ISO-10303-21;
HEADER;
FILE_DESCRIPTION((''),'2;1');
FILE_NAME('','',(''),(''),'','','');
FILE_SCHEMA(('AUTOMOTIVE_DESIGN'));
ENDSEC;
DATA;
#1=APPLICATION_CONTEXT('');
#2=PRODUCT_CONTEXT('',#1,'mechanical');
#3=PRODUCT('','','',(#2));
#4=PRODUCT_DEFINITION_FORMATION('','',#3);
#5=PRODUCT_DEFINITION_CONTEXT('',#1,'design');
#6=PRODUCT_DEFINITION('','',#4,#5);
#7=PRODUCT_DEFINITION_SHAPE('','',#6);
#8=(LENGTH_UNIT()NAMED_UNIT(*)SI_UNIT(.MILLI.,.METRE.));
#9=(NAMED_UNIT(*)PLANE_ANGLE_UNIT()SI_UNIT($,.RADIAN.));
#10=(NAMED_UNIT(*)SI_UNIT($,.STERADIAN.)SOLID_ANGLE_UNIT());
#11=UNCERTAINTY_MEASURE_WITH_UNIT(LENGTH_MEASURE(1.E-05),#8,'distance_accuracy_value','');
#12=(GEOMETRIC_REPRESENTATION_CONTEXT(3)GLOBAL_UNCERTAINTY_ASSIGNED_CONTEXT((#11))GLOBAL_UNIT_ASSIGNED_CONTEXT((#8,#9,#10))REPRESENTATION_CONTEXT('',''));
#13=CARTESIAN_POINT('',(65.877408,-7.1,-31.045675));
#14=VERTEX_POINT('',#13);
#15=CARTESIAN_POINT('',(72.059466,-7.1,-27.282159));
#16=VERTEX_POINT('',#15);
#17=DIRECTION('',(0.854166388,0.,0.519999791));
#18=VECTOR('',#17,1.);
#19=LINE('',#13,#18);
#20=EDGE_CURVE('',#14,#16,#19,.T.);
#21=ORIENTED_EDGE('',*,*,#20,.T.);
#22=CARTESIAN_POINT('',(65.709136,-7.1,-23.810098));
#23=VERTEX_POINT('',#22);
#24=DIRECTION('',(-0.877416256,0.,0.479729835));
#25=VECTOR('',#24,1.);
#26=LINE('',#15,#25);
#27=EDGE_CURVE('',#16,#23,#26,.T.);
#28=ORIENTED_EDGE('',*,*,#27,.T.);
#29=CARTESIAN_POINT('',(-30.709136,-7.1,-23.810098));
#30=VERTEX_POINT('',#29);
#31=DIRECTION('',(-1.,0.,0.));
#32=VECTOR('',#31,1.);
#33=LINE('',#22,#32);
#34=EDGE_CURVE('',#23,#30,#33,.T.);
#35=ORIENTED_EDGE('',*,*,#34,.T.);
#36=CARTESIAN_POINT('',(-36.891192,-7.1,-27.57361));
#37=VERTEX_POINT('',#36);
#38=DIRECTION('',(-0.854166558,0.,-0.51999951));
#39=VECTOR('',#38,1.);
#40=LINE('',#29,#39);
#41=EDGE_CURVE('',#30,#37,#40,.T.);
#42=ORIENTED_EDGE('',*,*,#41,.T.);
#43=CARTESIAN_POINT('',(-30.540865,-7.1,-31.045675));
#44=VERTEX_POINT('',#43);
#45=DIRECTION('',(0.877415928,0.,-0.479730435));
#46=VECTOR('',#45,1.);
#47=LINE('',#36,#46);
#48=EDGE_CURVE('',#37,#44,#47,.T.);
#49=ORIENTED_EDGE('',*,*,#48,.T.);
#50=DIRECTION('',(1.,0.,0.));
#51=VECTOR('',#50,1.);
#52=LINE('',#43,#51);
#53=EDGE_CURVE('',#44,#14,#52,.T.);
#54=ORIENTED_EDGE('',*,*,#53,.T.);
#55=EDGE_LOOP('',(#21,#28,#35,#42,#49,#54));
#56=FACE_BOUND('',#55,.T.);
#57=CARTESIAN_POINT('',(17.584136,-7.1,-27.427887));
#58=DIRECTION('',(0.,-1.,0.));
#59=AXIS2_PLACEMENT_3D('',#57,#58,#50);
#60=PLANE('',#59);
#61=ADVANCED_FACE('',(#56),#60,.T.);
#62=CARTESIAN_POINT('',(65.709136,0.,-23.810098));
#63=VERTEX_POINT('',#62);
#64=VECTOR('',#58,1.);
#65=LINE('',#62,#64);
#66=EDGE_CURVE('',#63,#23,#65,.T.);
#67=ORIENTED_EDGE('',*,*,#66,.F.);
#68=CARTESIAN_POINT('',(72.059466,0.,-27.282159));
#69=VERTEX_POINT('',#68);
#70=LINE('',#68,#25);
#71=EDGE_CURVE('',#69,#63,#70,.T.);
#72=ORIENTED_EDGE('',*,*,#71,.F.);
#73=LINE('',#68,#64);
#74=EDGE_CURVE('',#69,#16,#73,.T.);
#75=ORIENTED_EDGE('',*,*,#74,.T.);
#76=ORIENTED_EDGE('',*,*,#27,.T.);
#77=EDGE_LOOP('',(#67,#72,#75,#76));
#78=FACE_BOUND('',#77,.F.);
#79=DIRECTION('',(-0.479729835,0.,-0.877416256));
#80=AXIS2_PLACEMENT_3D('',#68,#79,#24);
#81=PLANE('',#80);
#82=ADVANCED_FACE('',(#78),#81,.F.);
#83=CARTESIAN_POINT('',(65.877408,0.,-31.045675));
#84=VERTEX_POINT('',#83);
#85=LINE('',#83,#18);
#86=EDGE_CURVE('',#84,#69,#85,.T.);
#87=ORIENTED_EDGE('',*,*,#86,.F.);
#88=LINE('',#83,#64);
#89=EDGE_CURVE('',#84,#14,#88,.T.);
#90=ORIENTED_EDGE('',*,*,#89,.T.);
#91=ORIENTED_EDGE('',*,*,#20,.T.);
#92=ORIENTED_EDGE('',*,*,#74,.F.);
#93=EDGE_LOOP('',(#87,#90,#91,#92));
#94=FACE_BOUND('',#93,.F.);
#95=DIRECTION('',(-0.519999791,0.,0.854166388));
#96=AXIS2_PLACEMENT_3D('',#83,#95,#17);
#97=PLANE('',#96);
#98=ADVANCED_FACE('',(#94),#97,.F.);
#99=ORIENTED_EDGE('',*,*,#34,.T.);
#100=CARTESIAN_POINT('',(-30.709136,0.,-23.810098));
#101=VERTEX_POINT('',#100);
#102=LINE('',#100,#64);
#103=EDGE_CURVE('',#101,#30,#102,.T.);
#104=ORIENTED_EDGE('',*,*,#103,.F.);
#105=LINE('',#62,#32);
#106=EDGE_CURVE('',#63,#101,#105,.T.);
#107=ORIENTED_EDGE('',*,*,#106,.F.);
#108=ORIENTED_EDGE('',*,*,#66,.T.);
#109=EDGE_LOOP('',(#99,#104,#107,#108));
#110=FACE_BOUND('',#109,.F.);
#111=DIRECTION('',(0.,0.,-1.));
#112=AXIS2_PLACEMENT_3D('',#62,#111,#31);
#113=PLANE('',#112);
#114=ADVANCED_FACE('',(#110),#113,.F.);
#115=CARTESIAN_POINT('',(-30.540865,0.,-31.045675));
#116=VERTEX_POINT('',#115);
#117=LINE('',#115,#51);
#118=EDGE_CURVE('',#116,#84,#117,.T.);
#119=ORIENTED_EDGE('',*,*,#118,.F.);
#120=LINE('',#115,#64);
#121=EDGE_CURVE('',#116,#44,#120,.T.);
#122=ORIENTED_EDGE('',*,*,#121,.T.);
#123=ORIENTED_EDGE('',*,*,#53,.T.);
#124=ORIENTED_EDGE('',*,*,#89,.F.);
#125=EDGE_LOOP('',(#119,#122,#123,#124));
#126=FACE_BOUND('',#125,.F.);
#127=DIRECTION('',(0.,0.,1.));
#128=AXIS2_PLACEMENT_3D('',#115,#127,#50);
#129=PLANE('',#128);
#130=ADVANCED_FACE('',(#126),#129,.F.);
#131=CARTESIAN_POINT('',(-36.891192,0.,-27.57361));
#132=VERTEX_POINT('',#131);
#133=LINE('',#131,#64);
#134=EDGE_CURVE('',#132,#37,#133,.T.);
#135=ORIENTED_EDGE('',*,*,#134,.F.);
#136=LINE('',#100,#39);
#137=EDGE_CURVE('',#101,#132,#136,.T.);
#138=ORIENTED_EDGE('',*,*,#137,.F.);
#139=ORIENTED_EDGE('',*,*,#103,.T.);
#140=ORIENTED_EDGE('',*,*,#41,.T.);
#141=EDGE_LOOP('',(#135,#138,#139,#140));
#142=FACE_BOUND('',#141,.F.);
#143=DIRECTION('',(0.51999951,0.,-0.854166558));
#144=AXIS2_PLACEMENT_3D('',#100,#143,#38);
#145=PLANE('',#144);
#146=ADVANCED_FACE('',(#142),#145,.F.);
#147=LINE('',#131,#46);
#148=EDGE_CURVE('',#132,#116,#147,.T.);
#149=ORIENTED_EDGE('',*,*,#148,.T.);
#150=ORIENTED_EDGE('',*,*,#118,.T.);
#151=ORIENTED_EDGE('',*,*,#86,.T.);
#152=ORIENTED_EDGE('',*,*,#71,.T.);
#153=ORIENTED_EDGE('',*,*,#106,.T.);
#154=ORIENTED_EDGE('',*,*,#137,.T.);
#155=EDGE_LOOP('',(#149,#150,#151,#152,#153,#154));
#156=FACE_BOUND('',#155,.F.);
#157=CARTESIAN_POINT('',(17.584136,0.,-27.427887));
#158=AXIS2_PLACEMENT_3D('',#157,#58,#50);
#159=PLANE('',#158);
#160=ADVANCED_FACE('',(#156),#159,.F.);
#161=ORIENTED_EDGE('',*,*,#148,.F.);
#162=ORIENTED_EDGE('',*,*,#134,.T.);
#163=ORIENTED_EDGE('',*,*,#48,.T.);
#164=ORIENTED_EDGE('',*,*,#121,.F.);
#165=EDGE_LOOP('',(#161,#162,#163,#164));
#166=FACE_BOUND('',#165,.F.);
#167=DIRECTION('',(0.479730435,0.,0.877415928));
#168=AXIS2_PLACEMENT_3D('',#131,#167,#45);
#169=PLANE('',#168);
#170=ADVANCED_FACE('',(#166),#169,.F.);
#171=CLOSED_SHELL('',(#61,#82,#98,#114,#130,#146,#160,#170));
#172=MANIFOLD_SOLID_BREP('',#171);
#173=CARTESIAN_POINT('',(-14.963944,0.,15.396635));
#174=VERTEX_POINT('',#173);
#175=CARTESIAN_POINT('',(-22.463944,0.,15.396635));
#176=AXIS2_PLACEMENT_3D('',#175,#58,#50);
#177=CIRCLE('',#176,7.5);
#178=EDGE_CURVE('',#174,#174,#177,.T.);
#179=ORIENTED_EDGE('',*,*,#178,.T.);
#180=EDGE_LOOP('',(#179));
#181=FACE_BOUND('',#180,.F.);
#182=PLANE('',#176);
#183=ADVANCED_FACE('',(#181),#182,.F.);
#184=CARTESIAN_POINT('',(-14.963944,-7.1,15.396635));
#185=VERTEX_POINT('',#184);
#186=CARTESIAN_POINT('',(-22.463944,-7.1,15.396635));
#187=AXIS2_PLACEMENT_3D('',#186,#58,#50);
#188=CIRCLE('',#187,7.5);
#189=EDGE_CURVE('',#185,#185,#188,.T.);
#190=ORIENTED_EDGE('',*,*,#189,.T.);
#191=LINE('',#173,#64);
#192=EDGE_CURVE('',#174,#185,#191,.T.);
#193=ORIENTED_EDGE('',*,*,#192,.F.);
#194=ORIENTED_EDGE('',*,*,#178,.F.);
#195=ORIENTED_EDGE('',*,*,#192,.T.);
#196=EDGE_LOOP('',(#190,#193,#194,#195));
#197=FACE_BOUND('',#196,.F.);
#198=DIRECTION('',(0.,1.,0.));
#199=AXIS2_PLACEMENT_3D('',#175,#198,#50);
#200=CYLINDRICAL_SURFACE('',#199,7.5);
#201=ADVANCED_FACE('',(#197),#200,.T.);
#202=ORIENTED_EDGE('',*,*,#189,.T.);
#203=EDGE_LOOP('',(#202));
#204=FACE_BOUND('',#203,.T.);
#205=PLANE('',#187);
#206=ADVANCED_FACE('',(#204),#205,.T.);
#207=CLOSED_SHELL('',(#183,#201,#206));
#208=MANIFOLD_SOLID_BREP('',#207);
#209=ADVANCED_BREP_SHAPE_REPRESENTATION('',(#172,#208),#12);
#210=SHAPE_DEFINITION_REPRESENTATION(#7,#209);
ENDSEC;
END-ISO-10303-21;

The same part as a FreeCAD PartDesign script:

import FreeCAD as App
import Part
import Sketcher
from FreeCAD import Vector


def add_polygon(sketch, points):
    """Adds a closed chain of lines whose ends are joined by coincident constraints."""
    first, n = sketch.GeometryCount, len(points)
    for a, b in zip(points, points[1:] + points[:1]):
        sketch.addGeometry(Part.LineSegment(App.Vector(*a, 0), App.Vector(*b, 0)), False)
    for i in range(n):
        sketch.addConstraint(Sketcher.Constraint("Coincident", first + i, 2, first + (i + 1) % n, 1))

doc = App.newDocument("Part")
body = doc.addObject("PartDesign::Body", "Body")
body.AllowCompound = True

# Sketch on XZ plane
sketch1 = doc.addObject("Sketcher::SketchObject", "Sketch")
body.addObject(sketch1)
sketch1.AttachmentSupport = (doc.XZ_Plane, [""])
sketch1.MapMode = "FlatFace"
sketch1.addGeometry(Part.Circle(Vector(-22, 15, 0), Vector(0, 0, 1), 8), False)  # 0
add_polygon(sketch1, [(-31, -31), (66, -31), (72, -27), (66, -24), (-31, -24), (-37, -28)])  # lines 1-6
sketch1.addConstraint(Sketcher.Constraint("Horizontal", 1))
sketch1.addConstraint(Sketcher.Constraint("Horizontal", 4))
sketch1.addConstraint(Sketcher.Constraint("Parallel", 2, 5))
sketch1.addConstraint(Sketcher.Constraint("Parallel", 3, 6))
sketch1.addConstraint(Sketcher.Constraint("Equal", 1, 4))
sketch1.addConstraint(Sketcher.Constraint("Equal", 2, 3))
sketch1.addConstraint(Sketcher.Constraint("Diameter", 0, 15.0))
sketch1.addConstraint(Sketcher.Constraint("DistanceX", 6, 2, 3, 2, 96.250001))
sketch1.addConstraint(Sketcher.Constraint("DistanceX", 4, 2, 4, 1, 96.418272))
sketch1.addConstraint(Sketcher.Constraint("DistanceY", 3, 2, -1, 1, 23.810098))
sketch1.addConstraint(Sketcher.Constraint("DistanceX", 4, 2, 2, 2, 102.768602))
sketch1.addConstraint(Sketcher.Constraint("Distance", 5, 7.23753))
sketch1.addConstraint(Sketcher.Constraint("DistanceX", -1, 1, 1, 2, 65.877408))
sketch1.addConstraint(Sketcher.Constraint("DistanceX", 0, 3, 1, 2, 88.341352))
sketch1.addConstraint(Sketcher.Constraint("DistanceY", 1, 2, 0, 3, 46.44231))
pad1 = doc.addObject("PartDesign::Pad", "Pad")
body.addObject(pad1)
pad1.Profile = sketch1
pad1.Length = 7.1

doc.recompute()
